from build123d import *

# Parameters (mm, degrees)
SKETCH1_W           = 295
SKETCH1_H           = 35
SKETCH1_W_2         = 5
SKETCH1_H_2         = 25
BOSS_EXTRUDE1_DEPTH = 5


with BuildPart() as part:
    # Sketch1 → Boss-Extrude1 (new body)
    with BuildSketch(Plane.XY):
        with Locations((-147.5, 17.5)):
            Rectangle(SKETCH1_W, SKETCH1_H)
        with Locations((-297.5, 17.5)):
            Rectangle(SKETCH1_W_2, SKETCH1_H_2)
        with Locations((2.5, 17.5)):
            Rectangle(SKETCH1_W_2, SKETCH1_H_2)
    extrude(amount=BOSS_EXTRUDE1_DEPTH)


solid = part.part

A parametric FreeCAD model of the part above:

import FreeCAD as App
import Part
import Sketcher
from FreeCAD import Vector


def add_polygon(sketch, points):
    """Adds a closed chain of lines whose ends are joined by coincident constraints."""
    first, n = sketch.GeometryCount, len(points)
    for a, b in zip(points, points[1:] + points[:1]):
        sketch.addGeometry(Part.LineSegment(App.Vector(*a, 0), App.Vector(*b, 0)), False)
    for i in range(n):
        sketch.addConstraint(Sketcher.Constraint("Coincident", first + i, 2, first + (i + 1) % n, 1))

doc = App.newDocument("Part")
body = doc.addObject("PartDesign::Body", "Body")

sketch1 = doc.addObject("Sketcher::SketchObject", "Sketch")
body.addObject(sketch1)
sketch1.AttachmentSupport = (doc.XY_Plane, [""])
sketch1.MapMode = "FlatFace"
add_polygon(sketch1, [(-295, 5), (-295, 0), (0, 0), (0, 5), (5, 5), (5, 30), (0, 30), (0, 35), (-295, 35), (-295, 30), (-300, 30), (-300, 5)])
sketch1.addConstraint(Sketcher.Constraint("Vertical", 0))
sketch1.addConstraint(Sketcher.Constraint("Horizontal", 1))
sketch1.addConstraint(Sketcher.Constraint("Vertical", 2))
sketch1.addConstraint(Sketcher.Constraint("Horizontal", 3))
sketch1.addConstraint(Sketcher.Constraint("Vertical", 4))
sketch1.addConstraint(Sketcher.Constraint("Horizontal", 5))
sketch1.addConstraint(Sketcher.Constraint("Vertical", 6))
sketch1.addConstraint(Sketcher.Constraint("Horizontal", 7))
sketch1.addConstraint(Sketcher.Constraint("Vertical", 8))
sketch1.addConstraint(Sketcher.Constraint("Horizontal", 9))
sketch1.addConstraint(Sketcher.Constraint("Vertical", 10))
sketch1.addConstraint(Sketcher.Constraint("Horizontal", 11))
sketch1.addConstraint(Sketcher.Constraint("Coincident", 1, 2, -1, 1))
sketch1.addConstraint(Sketcher.Constraint("PointOnObject", 5, 2, -2))
sketch1.addConstraint(Sketcher.Constraint("Horizontal", 5, 2, 8, 2))
sketch1.addConstraint(Sketcher.Constraint("Horizontal", 3, 2, 10, 2))
sketch1.addConstraint(Sketcher.Constraint("Vertical", 0, 2, 7, 2))
sketch1.addConstraint(Sketcher.Constraint("Equal", 5, 9))
sketch1.addConstraint(Sketcher.Constraint("Equal", 11, 0))
sketch1.addConstraint(Sketcher.Constraint("Equal", 2, 6))
sketch1.addConstraint(Sketcher.Constraint("DistanceX", 1, 1, 1, 2, 295.0))
sketch1.addConstraint(Sketcher.Constraint("DistanceX", 3, 1, 3, 2, 5.0))
sketch1.addConstraint(Sketcher.Constraint("DistanceY", 4, 1, 4, 2, 25.0))
pad1 = doc.addObject("PartDesign::Pad", "Pad")
body.addObject(pad1)
pad1.Profile = sketch1
pad1.Length = 5

doc.recompute()
